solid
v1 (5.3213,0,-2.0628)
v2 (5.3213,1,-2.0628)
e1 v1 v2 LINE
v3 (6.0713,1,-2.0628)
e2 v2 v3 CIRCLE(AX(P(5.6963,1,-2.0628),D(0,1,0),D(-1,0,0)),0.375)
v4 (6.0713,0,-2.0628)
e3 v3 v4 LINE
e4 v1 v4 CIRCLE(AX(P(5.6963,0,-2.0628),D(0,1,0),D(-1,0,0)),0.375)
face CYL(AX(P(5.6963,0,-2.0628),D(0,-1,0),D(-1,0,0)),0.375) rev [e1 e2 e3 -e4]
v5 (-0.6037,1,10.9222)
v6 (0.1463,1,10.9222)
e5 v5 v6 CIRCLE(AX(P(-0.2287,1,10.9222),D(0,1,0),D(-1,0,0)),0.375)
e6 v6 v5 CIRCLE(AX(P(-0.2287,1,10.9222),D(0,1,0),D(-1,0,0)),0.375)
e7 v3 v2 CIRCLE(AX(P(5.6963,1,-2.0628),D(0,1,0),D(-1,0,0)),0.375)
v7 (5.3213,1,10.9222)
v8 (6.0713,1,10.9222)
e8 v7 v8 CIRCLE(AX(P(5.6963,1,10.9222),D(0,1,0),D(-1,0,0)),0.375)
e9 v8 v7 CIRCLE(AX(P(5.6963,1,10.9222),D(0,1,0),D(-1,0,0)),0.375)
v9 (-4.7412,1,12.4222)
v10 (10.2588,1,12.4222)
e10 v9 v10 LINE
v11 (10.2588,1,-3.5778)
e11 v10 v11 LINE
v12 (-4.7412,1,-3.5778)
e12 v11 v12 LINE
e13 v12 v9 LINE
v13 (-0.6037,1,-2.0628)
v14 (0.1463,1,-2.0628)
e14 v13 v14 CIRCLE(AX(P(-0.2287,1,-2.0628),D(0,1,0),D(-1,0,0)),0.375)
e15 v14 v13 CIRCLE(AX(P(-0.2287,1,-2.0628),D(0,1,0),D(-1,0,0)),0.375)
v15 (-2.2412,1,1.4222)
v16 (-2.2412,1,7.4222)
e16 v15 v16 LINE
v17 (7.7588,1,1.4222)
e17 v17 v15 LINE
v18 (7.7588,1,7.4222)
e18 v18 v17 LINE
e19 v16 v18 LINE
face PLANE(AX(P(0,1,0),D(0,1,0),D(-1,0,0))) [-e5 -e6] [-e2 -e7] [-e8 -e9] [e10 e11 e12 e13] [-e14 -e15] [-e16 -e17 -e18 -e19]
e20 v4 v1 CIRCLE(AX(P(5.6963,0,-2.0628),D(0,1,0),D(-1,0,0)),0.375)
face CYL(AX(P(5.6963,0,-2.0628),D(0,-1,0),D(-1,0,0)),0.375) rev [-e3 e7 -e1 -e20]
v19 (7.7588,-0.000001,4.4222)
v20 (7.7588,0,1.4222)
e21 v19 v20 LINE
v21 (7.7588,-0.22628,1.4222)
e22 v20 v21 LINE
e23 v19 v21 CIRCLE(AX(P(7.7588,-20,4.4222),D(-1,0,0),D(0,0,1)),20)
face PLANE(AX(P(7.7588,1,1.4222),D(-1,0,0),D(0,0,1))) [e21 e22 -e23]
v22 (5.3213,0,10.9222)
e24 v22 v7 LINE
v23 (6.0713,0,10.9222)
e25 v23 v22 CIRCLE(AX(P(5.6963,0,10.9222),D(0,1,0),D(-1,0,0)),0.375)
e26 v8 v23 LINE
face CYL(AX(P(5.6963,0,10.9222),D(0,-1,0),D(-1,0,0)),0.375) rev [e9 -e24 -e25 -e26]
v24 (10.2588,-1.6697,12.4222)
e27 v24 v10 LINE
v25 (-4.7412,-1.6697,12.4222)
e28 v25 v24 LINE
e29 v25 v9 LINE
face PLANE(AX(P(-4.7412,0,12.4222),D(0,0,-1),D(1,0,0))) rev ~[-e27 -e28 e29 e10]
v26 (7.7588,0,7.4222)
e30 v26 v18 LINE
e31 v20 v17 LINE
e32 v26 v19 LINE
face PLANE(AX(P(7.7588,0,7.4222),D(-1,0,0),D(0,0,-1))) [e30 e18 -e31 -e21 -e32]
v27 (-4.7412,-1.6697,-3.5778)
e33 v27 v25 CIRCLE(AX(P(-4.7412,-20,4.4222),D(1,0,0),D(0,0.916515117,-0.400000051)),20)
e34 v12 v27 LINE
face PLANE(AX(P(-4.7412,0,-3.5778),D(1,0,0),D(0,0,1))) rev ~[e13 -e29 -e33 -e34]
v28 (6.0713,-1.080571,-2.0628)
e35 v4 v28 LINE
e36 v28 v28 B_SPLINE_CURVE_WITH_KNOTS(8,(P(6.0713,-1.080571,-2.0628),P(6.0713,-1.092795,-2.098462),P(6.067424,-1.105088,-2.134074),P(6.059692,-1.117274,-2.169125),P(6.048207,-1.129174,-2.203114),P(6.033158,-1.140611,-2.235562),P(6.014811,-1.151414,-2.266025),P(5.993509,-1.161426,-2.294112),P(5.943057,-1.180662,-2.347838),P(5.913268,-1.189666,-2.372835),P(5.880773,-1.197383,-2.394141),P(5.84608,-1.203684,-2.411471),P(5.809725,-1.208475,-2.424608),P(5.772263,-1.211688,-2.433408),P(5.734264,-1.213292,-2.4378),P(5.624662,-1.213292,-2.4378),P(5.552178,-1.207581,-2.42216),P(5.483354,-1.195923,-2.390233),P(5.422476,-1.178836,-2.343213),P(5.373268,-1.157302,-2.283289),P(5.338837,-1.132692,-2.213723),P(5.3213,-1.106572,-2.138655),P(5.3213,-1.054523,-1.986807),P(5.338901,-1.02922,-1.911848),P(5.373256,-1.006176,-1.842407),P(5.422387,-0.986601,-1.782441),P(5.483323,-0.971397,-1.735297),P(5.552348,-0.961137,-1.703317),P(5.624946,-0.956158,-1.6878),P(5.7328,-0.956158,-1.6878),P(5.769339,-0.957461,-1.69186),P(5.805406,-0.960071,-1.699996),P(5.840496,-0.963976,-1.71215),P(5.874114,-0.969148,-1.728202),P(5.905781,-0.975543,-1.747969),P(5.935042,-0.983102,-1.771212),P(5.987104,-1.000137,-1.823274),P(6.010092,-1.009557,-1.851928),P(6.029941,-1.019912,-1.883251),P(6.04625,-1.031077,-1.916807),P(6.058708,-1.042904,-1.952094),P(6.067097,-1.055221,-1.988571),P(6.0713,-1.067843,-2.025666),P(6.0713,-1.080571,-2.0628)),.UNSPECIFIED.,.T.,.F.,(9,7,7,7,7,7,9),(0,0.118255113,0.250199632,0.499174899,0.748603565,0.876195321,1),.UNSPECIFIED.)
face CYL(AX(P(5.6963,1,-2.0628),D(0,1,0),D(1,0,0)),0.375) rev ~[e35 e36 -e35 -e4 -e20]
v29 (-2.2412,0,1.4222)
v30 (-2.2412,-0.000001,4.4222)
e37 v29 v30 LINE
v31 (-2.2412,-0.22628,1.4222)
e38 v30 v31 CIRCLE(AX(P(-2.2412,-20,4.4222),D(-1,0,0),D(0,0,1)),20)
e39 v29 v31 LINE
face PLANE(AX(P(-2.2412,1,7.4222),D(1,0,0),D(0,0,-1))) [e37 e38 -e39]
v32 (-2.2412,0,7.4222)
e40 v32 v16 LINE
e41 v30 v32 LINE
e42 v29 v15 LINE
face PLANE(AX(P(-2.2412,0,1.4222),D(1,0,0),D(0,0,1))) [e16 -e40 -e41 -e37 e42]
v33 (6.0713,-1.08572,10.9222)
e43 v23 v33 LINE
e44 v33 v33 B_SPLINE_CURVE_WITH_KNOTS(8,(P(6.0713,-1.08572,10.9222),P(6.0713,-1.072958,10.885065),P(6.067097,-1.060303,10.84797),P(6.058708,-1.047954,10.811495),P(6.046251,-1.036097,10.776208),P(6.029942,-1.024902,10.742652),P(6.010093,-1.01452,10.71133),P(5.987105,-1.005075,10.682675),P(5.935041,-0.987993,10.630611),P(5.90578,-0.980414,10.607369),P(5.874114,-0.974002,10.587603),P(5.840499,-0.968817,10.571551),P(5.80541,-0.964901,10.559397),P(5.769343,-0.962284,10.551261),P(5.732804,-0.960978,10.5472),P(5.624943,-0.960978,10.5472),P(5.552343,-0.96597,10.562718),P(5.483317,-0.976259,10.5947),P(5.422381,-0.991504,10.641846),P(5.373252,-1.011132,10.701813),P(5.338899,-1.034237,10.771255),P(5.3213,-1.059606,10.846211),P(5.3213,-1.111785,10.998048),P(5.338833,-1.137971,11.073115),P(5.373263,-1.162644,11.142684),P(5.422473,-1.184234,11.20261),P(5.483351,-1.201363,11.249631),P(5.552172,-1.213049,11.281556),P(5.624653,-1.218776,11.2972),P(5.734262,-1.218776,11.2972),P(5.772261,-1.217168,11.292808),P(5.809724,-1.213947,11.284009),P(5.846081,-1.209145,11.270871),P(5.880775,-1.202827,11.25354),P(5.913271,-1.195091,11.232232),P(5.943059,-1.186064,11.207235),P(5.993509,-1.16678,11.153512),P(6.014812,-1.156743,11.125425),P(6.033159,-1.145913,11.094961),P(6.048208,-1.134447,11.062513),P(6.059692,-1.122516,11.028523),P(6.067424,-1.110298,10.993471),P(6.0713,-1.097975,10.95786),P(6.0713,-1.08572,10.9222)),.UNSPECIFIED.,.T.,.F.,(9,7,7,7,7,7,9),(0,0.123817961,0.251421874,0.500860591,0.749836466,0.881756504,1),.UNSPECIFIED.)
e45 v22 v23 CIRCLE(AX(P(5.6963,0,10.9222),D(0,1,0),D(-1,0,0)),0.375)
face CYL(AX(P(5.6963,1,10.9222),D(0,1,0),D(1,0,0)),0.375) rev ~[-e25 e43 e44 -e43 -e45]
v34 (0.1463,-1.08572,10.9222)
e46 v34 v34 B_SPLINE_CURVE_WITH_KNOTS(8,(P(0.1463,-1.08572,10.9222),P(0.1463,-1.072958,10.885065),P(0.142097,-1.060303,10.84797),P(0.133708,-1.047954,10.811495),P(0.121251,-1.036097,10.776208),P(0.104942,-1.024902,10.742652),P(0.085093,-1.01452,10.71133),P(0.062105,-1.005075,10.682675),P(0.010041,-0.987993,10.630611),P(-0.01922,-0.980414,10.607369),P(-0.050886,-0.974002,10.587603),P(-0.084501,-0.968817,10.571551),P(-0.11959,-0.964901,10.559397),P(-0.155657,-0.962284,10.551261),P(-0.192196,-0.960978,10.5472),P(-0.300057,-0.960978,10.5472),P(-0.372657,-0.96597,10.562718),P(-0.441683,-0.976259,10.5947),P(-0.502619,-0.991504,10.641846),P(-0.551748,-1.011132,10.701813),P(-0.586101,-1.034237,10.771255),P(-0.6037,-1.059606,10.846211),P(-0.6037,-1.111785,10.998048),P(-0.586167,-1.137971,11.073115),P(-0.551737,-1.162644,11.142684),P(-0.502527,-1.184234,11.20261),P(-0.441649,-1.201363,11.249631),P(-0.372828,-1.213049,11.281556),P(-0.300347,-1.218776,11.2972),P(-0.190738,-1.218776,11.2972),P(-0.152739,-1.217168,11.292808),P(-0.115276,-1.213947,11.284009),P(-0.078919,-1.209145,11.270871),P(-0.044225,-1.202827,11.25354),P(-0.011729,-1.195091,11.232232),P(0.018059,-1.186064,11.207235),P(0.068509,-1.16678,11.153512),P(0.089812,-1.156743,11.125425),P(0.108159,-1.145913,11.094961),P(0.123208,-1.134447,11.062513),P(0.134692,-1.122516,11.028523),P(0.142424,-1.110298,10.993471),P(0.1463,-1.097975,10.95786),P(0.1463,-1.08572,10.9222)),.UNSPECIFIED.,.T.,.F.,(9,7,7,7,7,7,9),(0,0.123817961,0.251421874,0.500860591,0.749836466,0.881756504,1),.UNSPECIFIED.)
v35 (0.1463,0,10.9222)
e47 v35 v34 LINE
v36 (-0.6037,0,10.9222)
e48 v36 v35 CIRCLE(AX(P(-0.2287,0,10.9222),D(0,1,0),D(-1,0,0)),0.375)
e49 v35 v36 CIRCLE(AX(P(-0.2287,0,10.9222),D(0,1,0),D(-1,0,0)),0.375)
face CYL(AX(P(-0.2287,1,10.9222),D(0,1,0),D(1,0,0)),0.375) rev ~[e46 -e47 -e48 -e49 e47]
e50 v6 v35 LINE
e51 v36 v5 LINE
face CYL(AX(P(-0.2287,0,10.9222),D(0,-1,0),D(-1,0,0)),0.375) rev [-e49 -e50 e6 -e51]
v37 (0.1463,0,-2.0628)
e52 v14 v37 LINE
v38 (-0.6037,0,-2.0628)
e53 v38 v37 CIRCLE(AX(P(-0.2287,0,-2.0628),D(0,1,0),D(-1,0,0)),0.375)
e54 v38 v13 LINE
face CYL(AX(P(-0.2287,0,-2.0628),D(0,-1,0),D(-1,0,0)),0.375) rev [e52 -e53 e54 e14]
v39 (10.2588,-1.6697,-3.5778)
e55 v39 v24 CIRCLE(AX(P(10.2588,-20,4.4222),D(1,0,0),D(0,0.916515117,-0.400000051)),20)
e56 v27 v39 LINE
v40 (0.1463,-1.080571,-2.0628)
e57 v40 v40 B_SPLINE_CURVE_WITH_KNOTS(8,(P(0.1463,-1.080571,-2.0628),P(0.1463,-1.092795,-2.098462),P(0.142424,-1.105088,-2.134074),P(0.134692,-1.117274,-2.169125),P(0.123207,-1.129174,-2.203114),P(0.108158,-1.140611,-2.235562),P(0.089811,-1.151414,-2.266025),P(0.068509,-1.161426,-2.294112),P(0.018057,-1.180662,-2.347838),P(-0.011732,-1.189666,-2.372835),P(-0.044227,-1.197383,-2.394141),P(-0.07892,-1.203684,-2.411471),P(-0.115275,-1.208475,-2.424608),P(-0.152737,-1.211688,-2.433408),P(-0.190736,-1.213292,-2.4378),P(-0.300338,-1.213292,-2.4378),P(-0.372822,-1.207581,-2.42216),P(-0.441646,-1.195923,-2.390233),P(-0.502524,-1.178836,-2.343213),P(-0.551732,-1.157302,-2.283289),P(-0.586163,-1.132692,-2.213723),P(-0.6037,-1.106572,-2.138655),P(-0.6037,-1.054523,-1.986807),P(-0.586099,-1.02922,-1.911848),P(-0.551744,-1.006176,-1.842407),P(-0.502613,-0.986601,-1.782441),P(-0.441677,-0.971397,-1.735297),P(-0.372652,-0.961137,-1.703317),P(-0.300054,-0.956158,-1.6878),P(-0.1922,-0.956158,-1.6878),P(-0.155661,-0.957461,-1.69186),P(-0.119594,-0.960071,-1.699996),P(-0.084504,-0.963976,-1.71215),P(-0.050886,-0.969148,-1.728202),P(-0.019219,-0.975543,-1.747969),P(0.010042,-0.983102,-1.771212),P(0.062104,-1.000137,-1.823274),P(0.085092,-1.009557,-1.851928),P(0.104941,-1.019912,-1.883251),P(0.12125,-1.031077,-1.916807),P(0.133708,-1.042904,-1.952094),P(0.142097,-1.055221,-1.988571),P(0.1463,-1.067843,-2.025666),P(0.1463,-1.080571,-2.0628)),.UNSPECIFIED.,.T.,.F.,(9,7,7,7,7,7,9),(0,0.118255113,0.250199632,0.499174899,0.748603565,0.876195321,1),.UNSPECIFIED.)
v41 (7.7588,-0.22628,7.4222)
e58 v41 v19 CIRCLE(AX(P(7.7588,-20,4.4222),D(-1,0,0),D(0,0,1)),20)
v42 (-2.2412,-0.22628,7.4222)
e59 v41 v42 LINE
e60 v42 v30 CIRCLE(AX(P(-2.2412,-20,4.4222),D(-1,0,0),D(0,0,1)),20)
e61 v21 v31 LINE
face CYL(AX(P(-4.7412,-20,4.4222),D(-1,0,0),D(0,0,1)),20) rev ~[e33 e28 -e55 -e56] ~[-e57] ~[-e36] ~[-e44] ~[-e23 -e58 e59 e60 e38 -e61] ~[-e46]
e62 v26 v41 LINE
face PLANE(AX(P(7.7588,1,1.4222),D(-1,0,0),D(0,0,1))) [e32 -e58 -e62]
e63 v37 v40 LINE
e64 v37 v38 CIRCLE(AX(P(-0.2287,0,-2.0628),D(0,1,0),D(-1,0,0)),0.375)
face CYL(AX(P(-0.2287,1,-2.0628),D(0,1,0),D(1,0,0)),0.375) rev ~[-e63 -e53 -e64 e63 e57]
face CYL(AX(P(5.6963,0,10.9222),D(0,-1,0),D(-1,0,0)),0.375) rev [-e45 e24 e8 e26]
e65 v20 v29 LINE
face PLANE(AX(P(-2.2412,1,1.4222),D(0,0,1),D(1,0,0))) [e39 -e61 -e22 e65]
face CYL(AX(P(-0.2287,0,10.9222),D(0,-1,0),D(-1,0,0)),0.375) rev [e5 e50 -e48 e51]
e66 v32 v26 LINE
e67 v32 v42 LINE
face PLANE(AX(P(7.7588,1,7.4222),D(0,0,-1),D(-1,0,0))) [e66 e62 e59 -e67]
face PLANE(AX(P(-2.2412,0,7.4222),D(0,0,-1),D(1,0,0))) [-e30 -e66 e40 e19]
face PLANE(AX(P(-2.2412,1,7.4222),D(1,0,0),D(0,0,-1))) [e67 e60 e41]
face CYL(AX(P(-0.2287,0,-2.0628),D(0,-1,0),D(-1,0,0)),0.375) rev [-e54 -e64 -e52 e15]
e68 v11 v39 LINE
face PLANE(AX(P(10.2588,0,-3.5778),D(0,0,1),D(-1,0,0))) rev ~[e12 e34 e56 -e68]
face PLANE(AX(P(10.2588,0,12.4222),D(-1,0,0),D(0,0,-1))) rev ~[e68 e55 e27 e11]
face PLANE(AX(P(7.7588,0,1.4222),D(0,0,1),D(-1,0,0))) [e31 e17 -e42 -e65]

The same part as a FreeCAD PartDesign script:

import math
import FreeCAD as App
import Part
import Sketcher
from FreeCAD import Vector
Q = App.Units.Quantity


def add_polygon(sketch, points):
    """Adds a closed chain of lines whose ends are joined by coincident constraints."""
    first, n = sketch.GeometryCount, len(points)
    for a, b in zip(points, points[1:] + points[:1]):
        sketch.addGeometry(Part.LineSegment(App.Vector(*a, 0), App.Vector(*b, 0)), False)
    for i in range(n):
        sketch.addConstraint(Sketcher.Constraint("Coincident", first + i, 2, first + (i + 1) % n, 1))

doc = App.newDocument("Part")
params = doc.addObject("Spreadsheet::Sheet", "Params")
for row, (alias, value) in enumerate([
    ("sketch1_diameter", "0.75 mm"),
    ("sketch1_width", "15 mm"),
    ("sketch1_width2", "10 mm"),
    ("sketch1_height", "16 mm"),
    ("sketch1_height2", "6 mm"),
    ("pad1_length", "1 mm"),
    ("sketch2_radius", "20 mm"),
    ("sketch2_height", "8 mm"),
    ("pad2_length", "15 mm"),
    ("sketch3_diameter", "0.75 mm"),
    ("sketch3_width", "10 mm"),
    ("sketch3_height", "6 mm"),
], start=1):
    params.set(f"A{row}", alias)
    params.set(f"B{row}", "=" + value)
    params.setAlias(f"B{row}", alias)

body = doc.addObject("PartDesign::Body", "Body")

sketch1 = body.newObject("Sketcher::SketchObject", "Sketch")
sketch1.AttachmentSupport = (doc.getObject("XZ_Plane"), [""])
sketch1.MapMode = "FlatFace"
add_polygon(sketch1, [(-4.74, -3.58), (-4.74, 12.42), (10.26, 12.42), (10.26, -3.58)])
sketch1.addGeometry(Part.Circle(Vector(5.7, -2.06, 0), Vector(0, 0, 1), 0.38), False)
sketch1.addGeometry(Part.Circle(Vector(-0.23, -2.06, 0), Vector(0, 0, 1), 0.38), False)
sketch1.addGeometry(Part.Circle(Vector(5.7, 10.92, 0), Vector(0, 0, 1), 0.38), False)
add_polygon(sketch1, [(7.76, 7.42), (-2.24, 7.42), (-2.24, 1.42), (7.76, 1.42)])
sketch1.addGeometry(Part.Circle(Vector(-0.23, 10.92, 0), Vector(0, 0, 1), 0.38), False)
sketch1.addConstraint([
    Sketcher.Constraint("Vertical", 0),
    Sketcher.Constraint("Horizontal", 1),
    Sketcher.Constraint("Vertical", 2),
    Sketcher.Constraint("Horizontal", 3),
    Sketcher.Constraint("Horizontal", 7),
    Sketcher.Constraint("Vertical", 8),
    Sketcher.Constraint("Horizontal", 9),
    Sketcher.Constraint("Vertical", 10),
    Sketcher.Constraint("Equal", 4, 5),
    Sketcher.Constraint("Equal", 5, 6),
    Sketcher.Constraint("Equal", 6, 11),
    Sketcher.Constraint("Horizontal", 4, 3, 5, 3),
    Sketcher.Constraint("Horizontal", 6, 3, 11, 3),
    Sketcher.Constraint("Vertical", 4, 3, 6, 3),
    Sketcher.Constraint("Vertical", 5, 3, 11, 3),
    Sketcher.Constraint("Diameter", 4, Q("0.75 mm")),
    Sketcher.Constraint("DistanceX", 1, 1, 1, 2, Q("15 mm")),
    Sketcher.Constraint("DistanceX", 7, 2, 7, 1, Q("10 mm")),
    Sketcher.Constraint("DistanceY", 0, 1, 0, 2, Q("16 mm")),
    Sketcher.Constraint("DistanceY", 8, 2, 8, 1, Q("6 mm")),
    Sketcher.Constraint("DistanceY", 7, 2, 0, 2, Q("5 mm")),
    Sketcher.Constraint("DistanceY", 11, 3, 0, 2, Q("1.5 mm")),
    Sketcher.Constraint("DistanceX", 0, 2, 7, 2, Q("2.5 mm")),
    Sketcher.Constraint("DistanceX", 5, 3, 4, 3, Q("5.925 mm")),
    Sketcher.Constraint("DistanceY", 4, 3, 6, 3, Q("12.985 mm")),
    Sketcher.Constraint("DistanceX", 0, 2, 11, 3, Q("4.5125 mm")),
    Sketcher.Constraint("DistanceX", -1, 1, 4, 3, Q("5.6963 mm")),
    Sketcher.Constraint("DistanceY", 4, 3, -1, 1, Q("2.0628 mm")),
])
sketch1.setExpression("Constraints[23]", "Params.sketch1_diameter")
sketch1.setExpression("Constraints[24]", "Params.sketch1_width")
sketch1.setExpression("Constraints[25]", "Params.sketch1_width2")
sketch1.setExpression("Constraints[26]", "Params.sketch1_height")
sketch1.setExpression("Constraints[27]", "Params.sketch1_height2")
pad1 = body.newObject("PartDesign::Pad", "Pad")
pad1.Profile = sketch1
pad1.setExpression("Length", "Params.pad1_length")
pad1.Reversed = True

sketch2 = body.newObject("Sketcher::SketchObject", "Sketch001")
sketch2.AttachmentSupport = (doc.getObject("YZ_Plane"), [""])
sketch2.MapMode = "FlatFace"
sketch2.AttachmentOffset = App.Placement(Vector(0, 0, -4.7412), App.Rotation())
sketch2.addGeometry([
    Part.ArcOfCircle(Part.Circle(Vector(-20, 4.4, 0), Vector(0, 0, 1), 20), math.radians(0), math.radians(24)),
    Part.LineSegment(Vector(-1.7, 12.4, 0), Vector(0, 12.4, 0)),
    Part.LineSegment(Vector(0, 12.4, 0), Vector(0, 4.4, 0)),
    Part.LineSegment(Vector(0, -3.6, 0), Vector(-1.7, -3.6, 0)),
    Part.ArcOfCircle(Part.Circle(Vector(-20, 4.4, 0), Vector(0, 0, 1), 20), math.radians(-24), math.radians(0)),
    Part.LineSegment(Vector(0, 4.4, 0), Vector(0, -3.6, 0)),
], False)
sketch2.addConstraint([
    Sketcher.Constraint("Coincident", 0, 2, 1, 1),
    Sketcher.Constraint("Coincident", 1, 2, 2, 1),
    Sketcher.Constraint("Tangent", 2, 2, 0, 1),
    Sketcher.Constraint("Coincident", 3, 2, 4, 1),
    Sketcher.Constraint("Tangent", 4, 2, 5, 1),
    Sketcher.Constraint("Coincident", 5, 2, 3, 1),
    Sketcher.Constraint("Horizontal", 1),
    Sketcher.Constraint("Vertical", 2),
    Sketcher.Constraint("Horizontal", 3),
    Sketcher.Constraint("Vertical", 5),
    Sketcher.Constraint("Coincident", 4, 3, 0, 3),
    Sketcher.Constraint("Equal", 0, 4),
    Sketcher.Constraint("PointOnObject", 1, 2, -2),
    Sketcher.Constraint("Vertical", 0, 2, 3, 2),
    Sketcher.Constraint("Radius", 0, Q("20 mm")),
    Sketcher.Constraint("DistanceY", 2, 2, 2, 1, Q("8 mm")),
    Sketcher.Constraint("DistanceY", -1, 1, 0, 3, Q("4.4222 mm")),
])
sketch2.setExpression("Constraints[14]", "Params.sketch2_radius")
sketch2.setExpression("Constraints[15]", "Params.sketch2_height")
pad2 = body.newObject("PartDesign::Pad", "Pad001")
pad2.Profile = sketch2
pad2.setExpression("Length", "Params.pad2_length")

sketch3 = body.newObject("Sketcher::SketchObject", "Sketch002")
sketch3.AttachmentSupport = (doc.getObject("XZ_Plane"), [""])
sketch3.MapMode = "FlatFace"
sketch3.AttachmentOffset = App.Placement(Vector(0, 0, -1), App.Rotation())
sketch3.addGeometry(Part.Circle(Vector(-0.23, 10.92, 0), Vector(0, 0, 1), 0.38), False)
sketch3.addGeometry(Part.Circle(Vector(5.7, 10.92, 0), Vector(0, 0, 1), 0.38), False)
sketch3.addGeometry(Part.Circle(Vector(-0.23, -2.06, 0), Vector(0, 0, 1), 0.38), False)
sketch3.addGeometry(Part.Circle(Vector(5.7, -2.06, 0), Vector(0, 0, 1), 0.38), False)
add_polygon(sketch3, [(7.76, 1.42), (-2.24, 1.42), (-2.24, 7.42), (7.76, 7.42)])
sketch3.addConstraint([
    Sketcher.Constraint("Horizontal", 4),
    Sketcher.Constraint("Vertical", 5),
    Sketcher.Constraint("Horizontal", 6),
    Sketcher.Constraint("Vertical", 7),
    Sketcher.Constraint("Equal", 0, 1),
    Sketcher.Constraint("Equal", 1, 2),
    Sketcher.Constraint("Equal", 2, 3),
    Sketcher.Constraint("Horizontal", 0, 3, 1, 3),
    Sketcher.Constraint("Horizontal", 2, 3, 3, 3),
    Sketcher.Constraint("Vertical", 0, 3, 2, 3),
    Sketcher.Constraint("Vertical", 1, 3, 3, 3),
    Sketcher.Constraint("Diameter", 0, Q("0.75 mm")),
    Sketcher.Constraint("DistanceX", 4, 2, 4, 1, Q("10 mm")),
    Sketcher.Constraint("DistanceY", 5, 1, 5, 2, Q("6 mm")),
    Sketcher.Constraint("DistanceY", 4, 2, 0, 3, Q("9.5 mm")),
    Sketcher.Constraint("DistanceX", 0, 3, 1, 3, Q("5.925 mm")),
    Sketcher.Constraint("DistanceY", 2, 3, 0, 3, Q("12.985 mm")),
    Sketcher.Constraint("DistanceX", 0, 3, -1, 1, Q("0.2287 mm")),
    Sketcher.Constraint("DistanceY", -1, 1, 0, 3, Q("10.9222 mm")),
    Sketcher.Constraint("DistanceX", 4, 2, -1, 1, Q("2.2412 mm")),
])
sketch3.setExpression("Constraints[15]", "Params.sketch3_diameter")
sketch3.setExpression("Constraints[16]", "Params.sketch3_width")
sketch3.setExpression("Constraints[17]", "Params.sketch3_height")
pocket1 = body.newObject("PartDesign::Pocket", "Pocket")
pocket1.Profile = sketch3
pocket1.Type = "ThroughAll"
pocket1.Reversed = True

doc.recompute()
